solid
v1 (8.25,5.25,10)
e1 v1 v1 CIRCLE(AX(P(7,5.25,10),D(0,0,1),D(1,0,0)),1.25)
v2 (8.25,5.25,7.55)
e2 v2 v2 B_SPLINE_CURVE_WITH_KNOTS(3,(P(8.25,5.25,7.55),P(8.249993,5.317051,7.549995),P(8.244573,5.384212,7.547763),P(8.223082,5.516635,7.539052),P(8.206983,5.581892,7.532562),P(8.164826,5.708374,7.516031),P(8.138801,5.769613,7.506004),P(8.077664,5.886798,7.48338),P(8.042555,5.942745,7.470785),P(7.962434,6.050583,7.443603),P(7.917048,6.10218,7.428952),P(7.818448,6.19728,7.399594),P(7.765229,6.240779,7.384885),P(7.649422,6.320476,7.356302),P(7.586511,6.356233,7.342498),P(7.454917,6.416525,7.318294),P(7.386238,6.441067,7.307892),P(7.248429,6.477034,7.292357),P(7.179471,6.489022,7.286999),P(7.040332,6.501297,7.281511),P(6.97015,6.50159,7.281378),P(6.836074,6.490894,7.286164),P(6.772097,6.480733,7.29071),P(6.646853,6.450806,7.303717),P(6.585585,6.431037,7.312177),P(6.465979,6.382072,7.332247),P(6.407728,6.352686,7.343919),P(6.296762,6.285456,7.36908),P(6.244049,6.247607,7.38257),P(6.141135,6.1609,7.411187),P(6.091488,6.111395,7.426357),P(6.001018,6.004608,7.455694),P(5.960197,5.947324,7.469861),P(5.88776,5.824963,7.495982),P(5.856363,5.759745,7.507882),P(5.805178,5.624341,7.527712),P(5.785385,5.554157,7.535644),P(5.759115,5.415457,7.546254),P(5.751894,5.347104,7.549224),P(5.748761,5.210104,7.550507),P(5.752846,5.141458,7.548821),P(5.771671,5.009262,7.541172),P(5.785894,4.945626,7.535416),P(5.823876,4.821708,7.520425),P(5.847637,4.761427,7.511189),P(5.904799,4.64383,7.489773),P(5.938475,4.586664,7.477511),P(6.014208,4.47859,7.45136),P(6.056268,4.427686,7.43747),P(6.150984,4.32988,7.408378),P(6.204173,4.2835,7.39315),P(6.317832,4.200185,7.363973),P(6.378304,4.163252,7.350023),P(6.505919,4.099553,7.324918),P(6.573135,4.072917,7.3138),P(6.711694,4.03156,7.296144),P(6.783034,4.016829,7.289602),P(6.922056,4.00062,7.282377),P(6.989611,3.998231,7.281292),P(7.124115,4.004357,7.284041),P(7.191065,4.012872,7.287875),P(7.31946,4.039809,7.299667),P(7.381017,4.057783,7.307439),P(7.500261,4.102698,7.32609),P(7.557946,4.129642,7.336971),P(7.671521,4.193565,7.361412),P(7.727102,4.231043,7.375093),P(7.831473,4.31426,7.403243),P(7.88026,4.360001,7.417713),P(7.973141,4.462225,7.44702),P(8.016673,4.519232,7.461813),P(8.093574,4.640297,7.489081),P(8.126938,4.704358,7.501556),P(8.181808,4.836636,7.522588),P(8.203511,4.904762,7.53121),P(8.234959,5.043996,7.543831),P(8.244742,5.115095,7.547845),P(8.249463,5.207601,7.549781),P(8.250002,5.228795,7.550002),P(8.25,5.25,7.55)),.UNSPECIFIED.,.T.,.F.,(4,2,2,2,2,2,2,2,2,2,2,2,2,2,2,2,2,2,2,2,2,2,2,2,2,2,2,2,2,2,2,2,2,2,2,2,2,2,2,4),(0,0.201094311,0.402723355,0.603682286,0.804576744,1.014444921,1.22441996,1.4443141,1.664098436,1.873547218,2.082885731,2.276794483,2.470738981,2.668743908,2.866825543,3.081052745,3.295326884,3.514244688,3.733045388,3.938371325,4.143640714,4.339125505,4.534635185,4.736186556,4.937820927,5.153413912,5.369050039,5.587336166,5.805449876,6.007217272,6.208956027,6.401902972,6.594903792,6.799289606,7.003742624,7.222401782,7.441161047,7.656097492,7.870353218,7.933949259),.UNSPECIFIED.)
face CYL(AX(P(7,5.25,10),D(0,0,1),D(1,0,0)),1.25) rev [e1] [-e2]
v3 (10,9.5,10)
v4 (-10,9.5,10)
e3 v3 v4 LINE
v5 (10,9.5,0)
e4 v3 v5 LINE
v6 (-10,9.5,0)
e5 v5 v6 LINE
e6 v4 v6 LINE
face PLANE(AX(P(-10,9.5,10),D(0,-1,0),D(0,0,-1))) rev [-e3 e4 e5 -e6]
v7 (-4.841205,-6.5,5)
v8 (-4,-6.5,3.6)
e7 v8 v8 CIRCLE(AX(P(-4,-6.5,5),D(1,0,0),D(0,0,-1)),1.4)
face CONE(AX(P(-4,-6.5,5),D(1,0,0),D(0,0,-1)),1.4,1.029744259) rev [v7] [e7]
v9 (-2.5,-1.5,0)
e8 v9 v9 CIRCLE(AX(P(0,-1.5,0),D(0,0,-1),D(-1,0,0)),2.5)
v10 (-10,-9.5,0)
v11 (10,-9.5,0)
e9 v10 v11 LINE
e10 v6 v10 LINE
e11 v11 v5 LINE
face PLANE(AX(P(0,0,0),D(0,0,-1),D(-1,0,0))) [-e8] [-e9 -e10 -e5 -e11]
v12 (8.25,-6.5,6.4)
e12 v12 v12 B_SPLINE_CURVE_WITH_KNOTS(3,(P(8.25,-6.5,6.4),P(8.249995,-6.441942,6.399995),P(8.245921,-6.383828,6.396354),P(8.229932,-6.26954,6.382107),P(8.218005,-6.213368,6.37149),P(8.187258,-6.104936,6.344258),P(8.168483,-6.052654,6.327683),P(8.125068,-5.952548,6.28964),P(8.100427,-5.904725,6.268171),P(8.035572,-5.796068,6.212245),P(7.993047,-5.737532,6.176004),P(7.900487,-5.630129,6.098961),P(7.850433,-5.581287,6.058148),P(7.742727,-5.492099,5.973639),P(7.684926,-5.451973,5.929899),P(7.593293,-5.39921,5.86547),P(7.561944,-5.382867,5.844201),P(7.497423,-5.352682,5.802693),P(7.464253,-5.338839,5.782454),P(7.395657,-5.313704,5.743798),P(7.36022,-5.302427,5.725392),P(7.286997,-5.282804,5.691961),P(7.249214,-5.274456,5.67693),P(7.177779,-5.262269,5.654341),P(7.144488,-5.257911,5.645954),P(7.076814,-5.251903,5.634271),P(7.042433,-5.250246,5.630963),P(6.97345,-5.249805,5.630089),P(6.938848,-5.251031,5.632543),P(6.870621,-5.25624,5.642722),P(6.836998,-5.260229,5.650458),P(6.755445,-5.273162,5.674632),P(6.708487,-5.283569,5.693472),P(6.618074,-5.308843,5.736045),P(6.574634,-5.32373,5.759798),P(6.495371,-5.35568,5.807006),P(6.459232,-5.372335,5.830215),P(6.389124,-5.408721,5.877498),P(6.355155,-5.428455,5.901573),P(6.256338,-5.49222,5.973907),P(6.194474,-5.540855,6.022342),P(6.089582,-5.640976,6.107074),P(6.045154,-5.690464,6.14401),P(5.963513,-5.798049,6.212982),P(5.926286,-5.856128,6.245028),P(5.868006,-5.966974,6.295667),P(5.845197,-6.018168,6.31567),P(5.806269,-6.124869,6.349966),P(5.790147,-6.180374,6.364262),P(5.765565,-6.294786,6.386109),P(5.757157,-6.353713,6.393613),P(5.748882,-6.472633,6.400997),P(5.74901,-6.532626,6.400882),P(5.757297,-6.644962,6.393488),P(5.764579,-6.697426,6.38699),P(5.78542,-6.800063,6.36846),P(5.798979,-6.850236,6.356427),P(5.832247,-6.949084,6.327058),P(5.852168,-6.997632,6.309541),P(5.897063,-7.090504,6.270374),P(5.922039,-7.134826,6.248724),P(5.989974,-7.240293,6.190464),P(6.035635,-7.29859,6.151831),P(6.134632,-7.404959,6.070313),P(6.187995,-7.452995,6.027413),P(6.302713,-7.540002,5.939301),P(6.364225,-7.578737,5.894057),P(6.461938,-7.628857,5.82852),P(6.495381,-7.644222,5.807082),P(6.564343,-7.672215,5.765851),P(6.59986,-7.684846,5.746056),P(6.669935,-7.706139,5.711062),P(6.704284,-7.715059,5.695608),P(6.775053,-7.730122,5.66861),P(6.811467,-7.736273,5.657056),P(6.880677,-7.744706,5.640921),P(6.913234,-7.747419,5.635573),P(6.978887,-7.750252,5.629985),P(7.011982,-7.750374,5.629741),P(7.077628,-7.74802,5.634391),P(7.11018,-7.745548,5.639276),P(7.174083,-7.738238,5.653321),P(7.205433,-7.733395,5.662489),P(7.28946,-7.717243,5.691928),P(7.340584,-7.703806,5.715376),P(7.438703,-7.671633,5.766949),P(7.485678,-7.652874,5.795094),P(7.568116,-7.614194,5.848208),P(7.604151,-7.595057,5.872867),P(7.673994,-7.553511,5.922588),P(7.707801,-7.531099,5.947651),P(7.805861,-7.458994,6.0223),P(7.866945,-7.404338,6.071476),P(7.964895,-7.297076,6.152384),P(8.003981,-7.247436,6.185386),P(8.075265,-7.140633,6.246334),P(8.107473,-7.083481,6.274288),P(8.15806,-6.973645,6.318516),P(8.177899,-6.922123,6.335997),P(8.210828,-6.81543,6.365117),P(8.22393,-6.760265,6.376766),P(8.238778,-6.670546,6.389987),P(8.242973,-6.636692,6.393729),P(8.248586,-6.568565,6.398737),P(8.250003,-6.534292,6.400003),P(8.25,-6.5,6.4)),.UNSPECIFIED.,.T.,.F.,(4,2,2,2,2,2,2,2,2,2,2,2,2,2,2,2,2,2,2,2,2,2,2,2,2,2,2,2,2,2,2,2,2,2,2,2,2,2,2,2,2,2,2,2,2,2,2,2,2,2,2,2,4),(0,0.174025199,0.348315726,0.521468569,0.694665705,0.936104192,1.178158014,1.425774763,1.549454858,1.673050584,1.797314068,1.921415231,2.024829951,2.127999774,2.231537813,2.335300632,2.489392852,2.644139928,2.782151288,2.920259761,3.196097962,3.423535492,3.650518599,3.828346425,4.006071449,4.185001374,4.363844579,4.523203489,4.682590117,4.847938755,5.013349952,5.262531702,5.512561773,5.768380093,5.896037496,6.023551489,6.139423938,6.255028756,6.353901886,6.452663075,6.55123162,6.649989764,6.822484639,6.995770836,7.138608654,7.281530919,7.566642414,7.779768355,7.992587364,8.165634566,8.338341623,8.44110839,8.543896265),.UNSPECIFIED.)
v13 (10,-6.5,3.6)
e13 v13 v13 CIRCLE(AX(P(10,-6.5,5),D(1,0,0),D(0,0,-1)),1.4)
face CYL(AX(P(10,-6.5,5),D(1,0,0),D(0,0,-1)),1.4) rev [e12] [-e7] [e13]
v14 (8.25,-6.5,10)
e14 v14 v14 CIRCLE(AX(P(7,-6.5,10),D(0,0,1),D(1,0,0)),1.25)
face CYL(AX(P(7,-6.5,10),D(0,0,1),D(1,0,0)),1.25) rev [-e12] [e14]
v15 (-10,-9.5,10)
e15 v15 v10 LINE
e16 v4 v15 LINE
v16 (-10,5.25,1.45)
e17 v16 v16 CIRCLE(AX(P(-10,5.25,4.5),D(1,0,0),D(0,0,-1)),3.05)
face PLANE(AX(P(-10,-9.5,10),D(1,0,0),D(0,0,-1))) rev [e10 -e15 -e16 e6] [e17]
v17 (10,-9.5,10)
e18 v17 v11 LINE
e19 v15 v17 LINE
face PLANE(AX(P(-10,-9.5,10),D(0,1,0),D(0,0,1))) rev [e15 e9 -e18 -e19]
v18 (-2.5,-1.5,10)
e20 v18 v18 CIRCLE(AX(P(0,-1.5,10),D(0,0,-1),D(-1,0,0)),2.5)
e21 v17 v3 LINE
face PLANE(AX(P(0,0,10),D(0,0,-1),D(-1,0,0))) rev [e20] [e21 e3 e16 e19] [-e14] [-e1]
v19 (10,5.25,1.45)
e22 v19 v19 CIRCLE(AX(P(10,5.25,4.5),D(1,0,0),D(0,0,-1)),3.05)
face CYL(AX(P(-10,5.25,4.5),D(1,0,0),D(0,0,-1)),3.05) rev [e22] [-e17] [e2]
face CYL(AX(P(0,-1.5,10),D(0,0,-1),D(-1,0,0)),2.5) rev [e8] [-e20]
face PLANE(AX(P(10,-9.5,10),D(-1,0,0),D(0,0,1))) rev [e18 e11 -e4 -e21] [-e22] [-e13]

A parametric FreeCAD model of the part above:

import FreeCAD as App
import Part
import Sketcher

doc = App.newDocument("Part")
params = doc.addObject("Spreadsheet::Sheet", "Params")
for row, (alias, value) in enumerate([
    ("sketch1_width", "20 mm"),
    ("sketch1_height", "19 mm"),
    ("pad1_length", "10 mm"),
    ("sketch2_diameter", "5 mm"),
    ("sketch3_diameter", "6.1 mm"),
    ("sketch4_diameter", "2.8 mm"),
    ("hole_diameter", "2.8 mm"),
    ("hole_depth", "14 mm"),
    ("sketch5_diameter", "2.5 mm"),
    ("sketch6_diameter", "2.5 mm"),
], start=1):
    params.set(f"A{row}", alias)
    params.set(f"B{row}", "=" + value)
    params.setAlias(f"B{row}", alias)

body = doc.addObject("PartDesign::Body", "Body")

sketch1 = body.newObject("Sketcher::SketchObject", "Sketch")
sketch1.AttachmentSupport = (doc.getObject("XY_Plane"), [""])
sketch1.MapMode = "FlatFace"
sketch1.addGeometry([
    Part.LineSegment(App.Vector(-10, 9.5, 0), App.Vector(-10, -9.5, 0)),
    Part.LineSegment(App.Vector(-10, -9.5, 0), App.Vector(10, -9.5, 0)),
    Part.LineSegment(App.Vector(10, -9.5, 0), App.Vector(10, 9.5, 0)),
    Part.LineSegment(App.Vector(10, 9.5, 0), App.Vector(-10, 9.5, 0)),
], False)
sketch1.addConstraint([
    Sketcher.Constraint("Coincident", 0, 2, 1, 1),
    Sketcher.Constraint("Coincident", 1, 2, 2, 1),
    Sketcher.Constraint("Coincident", 2, 2, 3, 1),
    Sketcher.Constraint("Coincident", 3, 2, 0, 1),
    Sketcher.Constraint("Vertical", 0),
    Sketcher.Constraint("Horizontal", 1),
    Sketcher.Constraint("Vertical", 2),
    Sketcher.Constraint("Horizontal", 3),
    Sketcher.Constraint("Symmetric", 0, 2, 2, 2, -1, 1),
    Sketcher.Constraint("DistanceX", 1, 1, 1, 2, 20.0),
    Sketcher.Constraint("DistanceY", 0, 2, 0, 1, 19.0),
])
sketch1.setExpression("Constraints[9]", "Params.sketch1_width")
sketch1.setExpression("Constraints[10]", "Params.sketch1_height")
pad1 = body.newObject("PartDesign::Pad", "Pad")
pad1.Profile = sketch1
pad1.setExpression("Length", "Params.pad1_length")

sketch2 = body.newObject("Sketcher::SketchObject", "Sketch001")
sketch2.AttachmentSupport = (doc.getObject("XY_Plane"), [""])
sketch2.MapMode = "FlatFace"
sketch2.addGeometry(Part.Circle(App.Vector(0, -1.5, 0), App.Vector(0, 0, 1), 2.5), False)
sketch2.addConstraint([
    Sketcher.Constraint("PointOnObject", 0, 3, -2),
    Sketcher.Constraint("Diameter", 0, 5.0),
    Sketcher.Constraint("DistanceY", 0, 3, -1, 1, 1.5),
])
sketch2.setExpression("Constraints[1]", "Params.sketch2_diameter")
pocket1 = body.newObject("PartDesign::Pocket", "Pocket")
pocket1.Profile = sketch2
pocket1.Type = "ThroughAll"
pocket1.Reversed = True

sketch3 = body.newObject("Sketcher::SketchObject", "Sketch002")
sketch3.AttachmentSupport = (doc.getObject("YZ_Plane"), [""])
sketch3.MapMode = "FlatFace"
sketch3.AttachmentOffset = App.Placement(App.Vector(0, 0, 10), App.Rotation())
sketch3.addGeometry(Part.Circle(App.Vector(5.25, 4.5, 0), App.Vector(0, 0, 1), 3.05), False)
sketch3.addConstraint([
    Sketcher.Constraint("Diameter", 0, 6.1),
    Sketcher.Constraint("DistanceY", -1, 1, 0, 3, 4.5),
    Sketcher.Constraint("DistanceX", -1, 1, 0, 3, 5.25),
])
sketch3.setExpression("Constraints[0]", "Params.sketch3_diameter")
pocket2 = body.newObject("PartDesign::Pocket", "Pocket001")
pocket2.Profile = sketch3
pocket2.Type = "ThroughAll"

sketch4 = body.newObject("Sketcher::SketchObject", "Sketch003")
sketch4.AttachmentSupport = (doc.getObject("YZ_Plane"), [""])
sketch4.MapMode = "FlatFace"
sketch4.AttachmentOffset = App.Placement(App.Vector(0, 0, 10), App.Rotation())
sketch4.addGeometry(Part.Circle(App.Vector(-6.5, 5, 0), App.Vector(0, 0, 1), 1.4), False)
sketch4.addConstraint([
    Sketcher.Constraint("Diameter", 0, 2.8),
    Sketcher.Constraint("DistanceY", -1, 1, 0, 3, 5.0),
    Sketcher.Constraint("DistanceX", 0, 3, -1, 1, 6.5),
])
sketch4.setExpression("Constraints[0]", "Params.sketch4_diameter")
doc.recompute()
hole = body.newObject("PartDesign::Hole", "Hole")
hole.Profile = sketch4
hole.ThreadType = "None"
hole.setExpression("Diameter", "Params.hole_diameter")
hole.DepthType = "Dimension"
hole.setExpression("Depth", "Params.hole_depth")
hole.DrillPoint = "Angled"
hole.DrillPointAngle = 118

sketch5 = body.newObject("Sketcher::SketchObject", "Sketch004")
sketch5.AttachmentSupport = (doc.getObject("XY_Plane"), [""])
sketch5.MapMode = "FlatFace"
sketch5.AttachmentOffset = App.Placement(App.Vector(0, 0, 10), App.Rotation())
sketch5.addGeometry(Part.Circle(App.Vector(7, 5.25, 0), App.Vector(0, 0, 1), 1.25), False)
sketch5.addConstraint([
    Sketcher.Constraint("Diameter", 0, 2.5),
    Sketcher.Constraint("DistanceX", -1, 1, 0, 3, 7.0),
    Sketcher.Constraint("DistanceY", -1, 1, 0, 3, 5.25),
])
sketch5.setExpression("Constraints[0]", "Params.sketch5_diameter")
pocket3 = body.newObject("PartDesign::Pocket", "Pocket002")
pocket3.Profile = sketch5
pocket3.Type = "UpToFirst"

sketch6 = body.newObject("Sketcher::SketchObject", "Sketch005")
sketch6.AttachmentSupport = (doc.getObject("XY_Plane"), [""])
sketch6.MapMode = "FlatFace"
sketch6.AttachmentOffset = App.Placement(App.Vector(0, 0, 10), App.Rotation())
sketch6.addGeometry(Part.Circle(App.Vector(7, -6.5, 0), App.Vector(0, 0, 1), 1.25), False)
sketch6.addConstraint([
    Sketcher.Constraint("Diameter", 0, 2.5),
    Sketcher.Constraint("DistanceX", -1, 1, 0, 3, 7.0),
    Sketcher.Constraint("DistanceY", 0, 3, -1, 1, 6.5),
])
sketch6.setExpression("Constraints[0]", "Params.sketch6_diameter")
pocket4 = body.newObject("PartDesign::Pocket", "Pocket003")
pocket4.Profile = sketch6
pocket4.Type = "UpToFirst"

doc.recompute()
